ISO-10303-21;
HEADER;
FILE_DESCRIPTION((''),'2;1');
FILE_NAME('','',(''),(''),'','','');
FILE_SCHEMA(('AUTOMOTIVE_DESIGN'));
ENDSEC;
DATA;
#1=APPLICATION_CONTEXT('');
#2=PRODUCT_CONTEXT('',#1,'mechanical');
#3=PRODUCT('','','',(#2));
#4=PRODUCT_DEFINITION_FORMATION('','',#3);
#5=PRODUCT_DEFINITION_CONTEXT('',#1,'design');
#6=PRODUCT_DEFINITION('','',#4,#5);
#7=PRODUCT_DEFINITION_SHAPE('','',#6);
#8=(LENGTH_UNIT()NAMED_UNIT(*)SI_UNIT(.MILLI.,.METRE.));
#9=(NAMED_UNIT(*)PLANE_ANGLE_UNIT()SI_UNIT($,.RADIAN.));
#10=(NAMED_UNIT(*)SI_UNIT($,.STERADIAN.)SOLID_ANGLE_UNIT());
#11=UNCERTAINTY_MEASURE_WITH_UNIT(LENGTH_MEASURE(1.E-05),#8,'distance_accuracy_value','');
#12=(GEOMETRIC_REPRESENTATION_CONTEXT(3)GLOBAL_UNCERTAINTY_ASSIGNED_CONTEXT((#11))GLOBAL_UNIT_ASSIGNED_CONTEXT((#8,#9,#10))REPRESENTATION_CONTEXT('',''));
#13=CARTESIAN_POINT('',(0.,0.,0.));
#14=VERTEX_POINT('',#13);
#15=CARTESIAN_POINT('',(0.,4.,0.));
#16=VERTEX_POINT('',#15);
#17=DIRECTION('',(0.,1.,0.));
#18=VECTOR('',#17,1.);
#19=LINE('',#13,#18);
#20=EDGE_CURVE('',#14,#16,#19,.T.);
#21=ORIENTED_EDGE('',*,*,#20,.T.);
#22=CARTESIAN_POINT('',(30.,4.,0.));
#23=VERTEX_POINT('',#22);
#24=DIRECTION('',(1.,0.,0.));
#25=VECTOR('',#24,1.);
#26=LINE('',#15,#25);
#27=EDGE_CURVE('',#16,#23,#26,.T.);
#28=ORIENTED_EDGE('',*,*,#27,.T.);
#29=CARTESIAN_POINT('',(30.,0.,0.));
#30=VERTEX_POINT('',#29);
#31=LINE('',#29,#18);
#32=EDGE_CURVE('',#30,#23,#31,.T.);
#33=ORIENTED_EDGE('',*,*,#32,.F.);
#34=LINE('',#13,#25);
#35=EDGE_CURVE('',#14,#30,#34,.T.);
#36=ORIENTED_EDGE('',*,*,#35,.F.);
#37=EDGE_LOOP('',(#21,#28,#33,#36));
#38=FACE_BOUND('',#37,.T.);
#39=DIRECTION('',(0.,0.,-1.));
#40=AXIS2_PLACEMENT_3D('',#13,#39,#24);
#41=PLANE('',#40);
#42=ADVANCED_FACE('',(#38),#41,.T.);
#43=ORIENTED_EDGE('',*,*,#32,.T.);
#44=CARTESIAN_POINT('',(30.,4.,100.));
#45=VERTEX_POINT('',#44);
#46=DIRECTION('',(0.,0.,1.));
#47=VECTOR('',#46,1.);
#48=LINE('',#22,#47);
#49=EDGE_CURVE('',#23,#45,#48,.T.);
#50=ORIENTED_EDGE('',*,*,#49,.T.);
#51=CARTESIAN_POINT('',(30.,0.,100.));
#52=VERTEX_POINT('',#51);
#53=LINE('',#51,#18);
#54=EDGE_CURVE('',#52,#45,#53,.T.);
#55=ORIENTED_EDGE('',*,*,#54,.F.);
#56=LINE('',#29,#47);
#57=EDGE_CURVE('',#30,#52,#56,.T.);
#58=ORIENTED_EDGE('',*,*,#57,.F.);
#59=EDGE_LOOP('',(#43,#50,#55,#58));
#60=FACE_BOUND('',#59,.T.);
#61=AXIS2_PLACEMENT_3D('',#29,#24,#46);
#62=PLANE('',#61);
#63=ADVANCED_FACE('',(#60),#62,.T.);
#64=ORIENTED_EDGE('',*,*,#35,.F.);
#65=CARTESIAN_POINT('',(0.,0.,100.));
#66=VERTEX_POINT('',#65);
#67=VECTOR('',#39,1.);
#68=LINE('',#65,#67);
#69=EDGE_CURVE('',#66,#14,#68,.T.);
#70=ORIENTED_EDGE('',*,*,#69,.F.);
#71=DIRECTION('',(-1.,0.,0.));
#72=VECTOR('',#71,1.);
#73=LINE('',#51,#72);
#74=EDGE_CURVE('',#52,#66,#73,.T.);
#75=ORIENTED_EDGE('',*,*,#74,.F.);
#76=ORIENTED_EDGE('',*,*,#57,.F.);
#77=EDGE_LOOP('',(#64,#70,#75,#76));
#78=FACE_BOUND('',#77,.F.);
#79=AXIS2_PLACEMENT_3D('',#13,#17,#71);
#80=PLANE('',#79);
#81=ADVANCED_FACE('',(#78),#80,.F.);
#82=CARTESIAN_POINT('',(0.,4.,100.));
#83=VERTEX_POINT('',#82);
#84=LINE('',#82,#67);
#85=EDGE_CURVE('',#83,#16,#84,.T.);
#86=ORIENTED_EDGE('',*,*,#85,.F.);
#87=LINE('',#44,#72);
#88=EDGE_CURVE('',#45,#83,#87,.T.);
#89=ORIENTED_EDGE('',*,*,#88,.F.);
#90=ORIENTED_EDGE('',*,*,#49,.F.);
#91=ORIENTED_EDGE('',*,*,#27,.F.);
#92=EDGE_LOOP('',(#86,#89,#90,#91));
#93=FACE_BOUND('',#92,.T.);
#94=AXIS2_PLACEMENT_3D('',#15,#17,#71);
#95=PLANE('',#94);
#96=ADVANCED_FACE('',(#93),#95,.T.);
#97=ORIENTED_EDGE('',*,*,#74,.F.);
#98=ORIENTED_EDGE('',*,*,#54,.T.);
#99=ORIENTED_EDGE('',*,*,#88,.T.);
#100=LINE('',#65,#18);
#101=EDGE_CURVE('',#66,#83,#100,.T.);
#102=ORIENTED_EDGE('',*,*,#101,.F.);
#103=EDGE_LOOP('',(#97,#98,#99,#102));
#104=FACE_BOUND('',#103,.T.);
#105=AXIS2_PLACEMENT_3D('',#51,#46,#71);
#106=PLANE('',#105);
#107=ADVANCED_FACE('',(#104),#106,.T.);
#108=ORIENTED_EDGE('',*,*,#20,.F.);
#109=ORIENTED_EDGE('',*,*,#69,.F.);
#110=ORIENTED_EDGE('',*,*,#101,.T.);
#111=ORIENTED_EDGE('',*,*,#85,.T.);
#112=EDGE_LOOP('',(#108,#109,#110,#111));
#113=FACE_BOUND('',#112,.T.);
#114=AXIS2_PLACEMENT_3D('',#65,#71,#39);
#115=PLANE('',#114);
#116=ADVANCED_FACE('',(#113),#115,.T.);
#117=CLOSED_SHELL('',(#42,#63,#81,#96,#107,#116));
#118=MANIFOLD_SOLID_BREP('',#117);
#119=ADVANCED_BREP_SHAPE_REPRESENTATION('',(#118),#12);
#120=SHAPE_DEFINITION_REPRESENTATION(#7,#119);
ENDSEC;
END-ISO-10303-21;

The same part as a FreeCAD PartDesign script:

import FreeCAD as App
import Part
import Sketcher


def add_polygon(sketch, points):
    """Adds a closed chain of lines whose ends are joined by coincident constraints."""
    first, n = sketch.GeometryCount, len(points)
    for a, b in zip(points, points[1:] + points[:1]):
        sketch.addGeometry(Part.LineSegment(App.Vector(*a, 0), App.Vector(*b, 0)), False)
    for i in range(n):
        sketch.addConstraint(Sketcher.Constraint("Coincident", first + i, 2, first + (i + 1) % n, 1))

doc = App.newDocument("Part")
body = doc.addObject("PartDesign::Body", "Body")

sketch1 = body.newObject("Sketcher::SketchObject", "Sketch")
sketch1.AttachmentSupport = (doc.getObject("XZ_Plane"), [""])
sketch1.MapMode = "FlatFace"
add_polygon(sketch1, [(30, 0), (0, 0), (0, 100), (30, 100)])
sketch1.addConstraint([
    Sketcher.Constraint("Horizontal", 0),
    Sketcher.Constraint("Vertical", 1),
    Sketcher.Constraint("Horizontal", 2),
    Sketcher.Constraint("Vertical", 3),
    Sketcher.Constraint("Coincident", 0, 2, -1, 1),
    Sketcher.Constraint("DistanceX", 0, 2, 0, 1, 30.0),
    Sketcher.Constraint("DistanceY", 1, 1, 1, 2, 100.0),
])
pad1 = body.newObject("PartDesign::Pad", "Pad")
pad1.Profile = sketch1
pad1.Length = 4
pad1.Reversed = True

doc.recompute()
